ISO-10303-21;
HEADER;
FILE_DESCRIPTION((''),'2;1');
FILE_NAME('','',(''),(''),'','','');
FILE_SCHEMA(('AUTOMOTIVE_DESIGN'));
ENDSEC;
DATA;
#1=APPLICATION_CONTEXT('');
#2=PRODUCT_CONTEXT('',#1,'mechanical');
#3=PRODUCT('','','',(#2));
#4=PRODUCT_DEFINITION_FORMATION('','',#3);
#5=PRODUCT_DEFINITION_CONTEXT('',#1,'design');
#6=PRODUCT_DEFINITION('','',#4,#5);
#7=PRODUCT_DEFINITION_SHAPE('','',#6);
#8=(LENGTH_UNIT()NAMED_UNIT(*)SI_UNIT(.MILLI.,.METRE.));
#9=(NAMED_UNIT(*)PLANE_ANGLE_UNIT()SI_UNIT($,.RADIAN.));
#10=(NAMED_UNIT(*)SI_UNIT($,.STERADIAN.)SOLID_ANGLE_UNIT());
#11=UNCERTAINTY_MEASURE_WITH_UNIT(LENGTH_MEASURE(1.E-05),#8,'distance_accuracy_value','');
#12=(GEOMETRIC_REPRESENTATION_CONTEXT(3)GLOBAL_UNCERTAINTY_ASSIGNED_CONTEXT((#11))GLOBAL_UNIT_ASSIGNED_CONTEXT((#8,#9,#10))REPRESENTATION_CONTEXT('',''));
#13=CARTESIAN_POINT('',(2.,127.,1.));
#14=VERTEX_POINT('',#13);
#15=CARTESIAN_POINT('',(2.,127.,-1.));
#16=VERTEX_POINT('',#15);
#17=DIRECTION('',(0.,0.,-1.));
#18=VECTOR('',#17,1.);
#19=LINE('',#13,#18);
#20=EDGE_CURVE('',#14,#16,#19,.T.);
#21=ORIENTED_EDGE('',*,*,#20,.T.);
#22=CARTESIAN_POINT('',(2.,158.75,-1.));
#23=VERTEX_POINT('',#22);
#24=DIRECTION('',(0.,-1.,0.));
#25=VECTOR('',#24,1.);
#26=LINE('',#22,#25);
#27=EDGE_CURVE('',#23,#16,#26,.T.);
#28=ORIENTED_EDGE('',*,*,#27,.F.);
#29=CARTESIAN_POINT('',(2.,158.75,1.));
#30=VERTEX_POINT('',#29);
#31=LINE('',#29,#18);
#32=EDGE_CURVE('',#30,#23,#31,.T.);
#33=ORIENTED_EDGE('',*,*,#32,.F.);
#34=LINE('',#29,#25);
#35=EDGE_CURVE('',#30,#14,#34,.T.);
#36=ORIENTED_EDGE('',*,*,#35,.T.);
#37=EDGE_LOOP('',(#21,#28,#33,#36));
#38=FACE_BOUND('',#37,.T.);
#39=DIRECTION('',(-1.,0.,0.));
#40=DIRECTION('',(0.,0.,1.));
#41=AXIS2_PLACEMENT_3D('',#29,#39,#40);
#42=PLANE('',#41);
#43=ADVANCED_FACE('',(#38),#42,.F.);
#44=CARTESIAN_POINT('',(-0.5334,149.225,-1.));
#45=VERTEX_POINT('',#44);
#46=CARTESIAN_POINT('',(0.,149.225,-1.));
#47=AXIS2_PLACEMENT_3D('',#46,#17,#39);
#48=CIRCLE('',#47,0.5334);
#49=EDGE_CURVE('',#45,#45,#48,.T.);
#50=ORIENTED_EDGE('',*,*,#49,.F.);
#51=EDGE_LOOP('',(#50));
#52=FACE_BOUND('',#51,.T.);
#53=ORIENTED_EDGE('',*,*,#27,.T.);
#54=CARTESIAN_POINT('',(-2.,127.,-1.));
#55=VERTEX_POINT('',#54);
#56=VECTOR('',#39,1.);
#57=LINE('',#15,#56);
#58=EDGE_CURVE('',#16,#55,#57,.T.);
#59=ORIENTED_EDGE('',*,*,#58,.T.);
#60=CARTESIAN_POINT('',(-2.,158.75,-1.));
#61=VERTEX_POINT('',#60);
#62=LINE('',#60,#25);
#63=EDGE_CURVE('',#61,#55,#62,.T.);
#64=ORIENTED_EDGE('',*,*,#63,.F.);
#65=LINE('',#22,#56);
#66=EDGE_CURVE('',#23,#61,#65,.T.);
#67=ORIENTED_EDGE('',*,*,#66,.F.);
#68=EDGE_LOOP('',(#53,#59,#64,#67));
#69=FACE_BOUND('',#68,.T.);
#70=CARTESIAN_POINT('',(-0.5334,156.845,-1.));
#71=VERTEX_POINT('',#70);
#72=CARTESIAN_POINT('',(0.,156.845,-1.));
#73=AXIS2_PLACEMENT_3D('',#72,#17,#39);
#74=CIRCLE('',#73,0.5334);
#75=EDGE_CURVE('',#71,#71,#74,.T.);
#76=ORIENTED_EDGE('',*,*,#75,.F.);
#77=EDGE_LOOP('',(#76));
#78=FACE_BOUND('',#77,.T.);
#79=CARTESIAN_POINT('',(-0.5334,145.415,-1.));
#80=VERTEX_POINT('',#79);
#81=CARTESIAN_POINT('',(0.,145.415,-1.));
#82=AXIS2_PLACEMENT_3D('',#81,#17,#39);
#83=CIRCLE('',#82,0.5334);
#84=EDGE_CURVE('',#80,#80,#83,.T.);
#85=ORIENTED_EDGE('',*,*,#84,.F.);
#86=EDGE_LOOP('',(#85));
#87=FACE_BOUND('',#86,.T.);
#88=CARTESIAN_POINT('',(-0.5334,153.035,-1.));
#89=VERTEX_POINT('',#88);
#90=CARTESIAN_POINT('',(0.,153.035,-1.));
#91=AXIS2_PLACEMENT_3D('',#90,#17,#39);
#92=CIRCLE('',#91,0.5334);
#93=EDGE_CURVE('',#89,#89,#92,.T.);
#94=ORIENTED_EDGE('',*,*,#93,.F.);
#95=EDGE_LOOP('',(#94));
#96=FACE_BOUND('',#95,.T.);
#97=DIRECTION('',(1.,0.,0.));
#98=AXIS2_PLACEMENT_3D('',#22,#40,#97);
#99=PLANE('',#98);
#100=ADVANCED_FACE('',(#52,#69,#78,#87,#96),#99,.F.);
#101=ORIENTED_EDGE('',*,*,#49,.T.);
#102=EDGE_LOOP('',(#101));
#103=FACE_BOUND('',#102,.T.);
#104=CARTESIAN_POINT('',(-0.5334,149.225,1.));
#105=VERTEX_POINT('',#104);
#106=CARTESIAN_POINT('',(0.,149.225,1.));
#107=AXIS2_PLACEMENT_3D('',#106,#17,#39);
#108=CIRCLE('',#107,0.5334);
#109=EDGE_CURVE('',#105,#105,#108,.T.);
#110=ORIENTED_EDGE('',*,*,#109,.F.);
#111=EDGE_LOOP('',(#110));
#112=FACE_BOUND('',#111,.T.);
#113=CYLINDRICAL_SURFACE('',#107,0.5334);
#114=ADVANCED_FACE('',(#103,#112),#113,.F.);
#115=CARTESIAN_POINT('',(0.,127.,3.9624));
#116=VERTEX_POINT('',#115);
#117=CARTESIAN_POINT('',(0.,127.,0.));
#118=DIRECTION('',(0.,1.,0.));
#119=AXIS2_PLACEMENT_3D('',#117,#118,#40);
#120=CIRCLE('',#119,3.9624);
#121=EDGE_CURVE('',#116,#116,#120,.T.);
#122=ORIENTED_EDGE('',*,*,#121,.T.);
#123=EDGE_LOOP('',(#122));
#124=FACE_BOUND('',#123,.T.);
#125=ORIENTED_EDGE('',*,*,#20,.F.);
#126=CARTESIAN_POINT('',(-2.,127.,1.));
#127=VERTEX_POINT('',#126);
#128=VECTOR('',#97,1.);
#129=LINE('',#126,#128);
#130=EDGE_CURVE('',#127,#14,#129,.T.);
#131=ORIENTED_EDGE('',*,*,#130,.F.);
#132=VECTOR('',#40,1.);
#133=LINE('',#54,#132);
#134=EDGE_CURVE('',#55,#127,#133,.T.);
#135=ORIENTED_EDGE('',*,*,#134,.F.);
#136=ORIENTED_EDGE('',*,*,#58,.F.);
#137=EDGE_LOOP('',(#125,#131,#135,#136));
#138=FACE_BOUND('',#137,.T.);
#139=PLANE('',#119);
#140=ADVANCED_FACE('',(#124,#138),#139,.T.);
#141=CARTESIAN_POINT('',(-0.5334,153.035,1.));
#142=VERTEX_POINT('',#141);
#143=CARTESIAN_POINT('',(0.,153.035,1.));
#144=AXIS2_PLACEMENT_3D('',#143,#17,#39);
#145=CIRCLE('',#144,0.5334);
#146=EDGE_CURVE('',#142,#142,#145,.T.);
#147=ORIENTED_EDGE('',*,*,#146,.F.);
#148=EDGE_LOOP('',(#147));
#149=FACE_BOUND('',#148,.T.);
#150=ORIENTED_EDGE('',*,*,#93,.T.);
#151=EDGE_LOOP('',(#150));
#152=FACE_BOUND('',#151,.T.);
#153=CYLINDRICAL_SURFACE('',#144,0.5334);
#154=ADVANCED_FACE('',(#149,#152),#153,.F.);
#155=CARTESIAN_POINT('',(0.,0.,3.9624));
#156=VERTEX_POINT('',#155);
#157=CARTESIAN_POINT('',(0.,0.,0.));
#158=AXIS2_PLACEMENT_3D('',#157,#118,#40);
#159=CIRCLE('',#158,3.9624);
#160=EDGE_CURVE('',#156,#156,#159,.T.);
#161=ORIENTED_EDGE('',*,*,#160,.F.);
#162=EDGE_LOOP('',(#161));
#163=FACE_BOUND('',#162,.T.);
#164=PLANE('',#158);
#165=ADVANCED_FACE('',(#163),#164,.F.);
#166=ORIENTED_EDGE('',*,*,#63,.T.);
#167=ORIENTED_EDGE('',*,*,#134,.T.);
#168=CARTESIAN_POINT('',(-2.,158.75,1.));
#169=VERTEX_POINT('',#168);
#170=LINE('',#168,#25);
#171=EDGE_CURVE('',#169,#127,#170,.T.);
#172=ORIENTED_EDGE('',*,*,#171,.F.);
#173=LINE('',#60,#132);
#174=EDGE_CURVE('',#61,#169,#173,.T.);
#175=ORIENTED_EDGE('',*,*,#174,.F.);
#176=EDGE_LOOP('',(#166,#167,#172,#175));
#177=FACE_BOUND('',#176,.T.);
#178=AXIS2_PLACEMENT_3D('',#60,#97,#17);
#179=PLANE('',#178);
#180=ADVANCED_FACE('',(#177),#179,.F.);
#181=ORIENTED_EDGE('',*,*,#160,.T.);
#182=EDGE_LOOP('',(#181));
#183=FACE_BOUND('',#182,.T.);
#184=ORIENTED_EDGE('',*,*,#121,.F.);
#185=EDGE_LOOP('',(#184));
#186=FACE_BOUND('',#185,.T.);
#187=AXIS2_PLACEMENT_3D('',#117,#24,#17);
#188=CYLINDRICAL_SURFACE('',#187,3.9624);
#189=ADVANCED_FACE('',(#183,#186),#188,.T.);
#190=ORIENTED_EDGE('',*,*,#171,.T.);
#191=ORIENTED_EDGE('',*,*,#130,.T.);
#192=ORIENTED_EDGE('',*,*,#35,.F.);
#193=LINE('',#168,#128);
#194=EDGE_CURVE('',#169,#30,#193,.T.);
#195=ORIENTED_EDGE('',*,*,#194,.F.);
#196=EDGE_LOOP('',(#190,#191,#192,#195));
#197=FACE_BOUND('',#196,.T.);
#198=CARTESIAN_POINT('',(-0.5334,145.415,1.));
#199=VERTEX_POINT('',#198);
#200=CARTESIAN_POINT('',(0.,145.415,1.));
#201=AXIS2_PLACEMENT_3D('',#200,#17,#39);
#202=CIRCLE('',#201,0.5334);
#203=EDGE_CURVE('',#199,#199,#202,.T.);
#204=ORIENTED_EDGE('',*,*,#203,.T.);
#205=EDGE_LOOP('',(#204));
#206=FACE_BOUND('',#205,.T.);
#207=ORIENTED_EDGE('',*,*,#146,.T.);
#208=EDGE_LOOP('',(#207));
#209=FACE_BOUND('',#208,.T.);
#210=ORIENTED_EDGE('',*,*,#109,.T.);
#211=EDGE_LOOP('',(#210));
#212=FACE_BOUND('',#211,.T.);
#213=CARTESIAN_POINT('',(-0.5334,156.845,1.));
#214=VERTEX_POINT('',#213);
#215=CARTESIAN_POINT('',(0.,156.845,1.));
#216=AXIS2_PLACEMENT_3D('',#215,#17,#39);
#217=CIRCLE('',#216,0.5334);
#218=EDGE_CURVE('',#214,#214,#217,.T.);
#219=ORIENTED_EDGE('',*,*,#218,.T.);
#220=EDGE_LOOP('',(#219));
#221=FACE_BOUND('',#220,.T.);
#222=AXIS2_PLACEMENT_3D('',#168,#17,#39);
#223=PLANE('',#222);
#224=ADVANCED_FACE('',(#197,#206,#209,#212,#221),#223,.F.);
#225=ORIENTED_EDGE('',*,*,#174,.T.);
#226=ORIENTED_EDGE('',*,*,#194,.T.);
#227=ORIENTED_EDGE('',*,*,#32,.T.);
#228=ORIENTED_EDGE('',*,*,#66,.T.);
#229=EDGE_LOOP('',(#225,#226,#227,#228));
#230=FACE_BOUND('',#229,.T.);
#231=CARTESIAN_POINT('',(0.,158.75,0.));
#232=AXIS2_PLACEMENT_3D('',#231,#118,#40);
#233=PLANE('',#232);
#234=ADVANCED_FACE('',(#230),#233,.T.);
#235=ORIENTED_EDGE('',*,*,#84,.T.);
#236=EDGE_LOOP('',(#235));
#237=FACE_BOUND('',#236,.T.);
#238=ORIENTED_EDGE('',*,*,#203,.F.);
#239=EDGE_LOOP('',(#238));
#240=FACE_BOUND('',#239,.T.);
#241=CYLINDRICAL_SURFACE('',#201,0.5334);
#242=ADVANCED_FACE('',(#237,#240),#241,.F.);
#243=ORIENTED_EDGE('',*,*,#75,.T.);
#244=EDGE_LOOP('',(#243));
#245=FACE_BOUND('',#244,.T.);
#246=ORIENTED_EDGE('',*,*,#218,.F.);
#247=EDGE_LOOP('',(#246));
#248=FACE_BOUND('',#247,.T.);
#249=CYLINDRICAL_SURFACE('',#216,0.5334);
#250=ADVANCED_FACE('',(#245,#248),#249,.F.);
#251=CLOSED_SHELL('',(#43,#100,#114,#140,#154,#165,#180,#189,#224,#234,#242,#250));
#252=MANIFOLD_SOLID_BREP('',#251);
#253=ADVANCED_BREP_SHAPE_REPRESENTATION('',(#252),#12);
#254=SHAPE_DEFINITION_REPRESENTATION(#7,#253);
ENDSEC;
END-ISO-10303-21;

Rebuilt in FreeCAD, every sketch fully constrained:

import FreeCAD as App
import Part
import Sketcher
Q = App.Units.Quantity


def add_polygon(sketch, points):
    """Adds a closed chain of lines whose ends are joined by coincident constraints."""
    first, n = sketch.GeometryCount, len(points)
    for a, b in zip(points, points[1:] + points[:1]):
        sketch.addGeometry(Part.LineSegment(App.Vector(*a, 0), App.Vector(*b, 0)), False)
    for i in range(n):
        sketch.addConstraint(Sketcher.Constraint("Coincident", first + i, 2, first + (i + 1) % n, 1))

doc = App.newDocument("Part")
body = doc.addObject("PartDesign::Body", "Body")

sketch1 = doc.addObject("Sketcher::SketchObject", "Sketch")
body.addObject(sketch1)
sketch1.AttachmentSupport = (doc.XZ_Plane, [""])
sketch1.MapMode = "FlatFace"
sketch1.addGeometry(Part.Circle(App.Vector(0, 0, 0), App.Vector(0, 0, 1), 4), False)
sketch1.addConstraint(Sketcher.Constraint("Coincident", 0, 3, -1, 1))
sketch1.addConstraint(Sketcher.Constraint("Diameter", 0, Q("0.312 in")))
pad1 = doc.addObject("PartDesign::Pad", "Pad")
body.addObject(pad1)
pad1.Profile = sketch1
pad1.Length = Q("5 in")
pad1.Reversed = True

sketch2 = doc.addObject("Sketcher::SketchObject", "Sketch001")
body.addObject(sketch2)
sketch2.AttachmentSupport = (doc.XZ_Plane, [""])
sketch2.MapMode = "FlatFace"
sketch2.AttachmentOffset = App.Placement(App.Vector(0, 0, -5 * 25.4), App.Rotation())
add_polygon(sketch2, [(-2, -1), (-2, 1), (2, 1), (2, -1)])
sketch2.addConstraint(Sketcher.Constraint("Vertical", 0))
sketch2.addConstraint(Sketcher.Constraint("Horizontal", 1))
sketch2.addConstraint(Sketcher.Constraint("Vertical", 2))
sketch2.addConstraint(Sketcher.Constraint("Horizontal", 3))
sketch2.addConstraint(Sketcher.Constraint("Symmetric", 0, 2, 2, 2, -1, 1))
sketch2.addConstraint(Sketcher.Constraint("DistanceX", 1, 1, 1, 2, Q("4 mm")))
sketch2.addConstraint(Sketcher.Constraint("DistanceY", 0, 1, 0, 2, Q("2 mm")))
pad2 = doc.addObject("PartDesign::Pad", "Pad001")
body.addObject(pad2)
pad2.Profile = sketch2
pad2.Length = Q("1.25 in")
pad2.Reversed = True

sketch3 = doc.addObject("Sketcher::SketchObject", "Sketch002")
body.addObject(sketch3)
sketch3.AttachmentSupport = (doc.XY_Plane, [""])
sketch3.MapMode = "FlatFace"
sketch3.AttachmentOffset = App.Placement(App.Vector(0, 0, -1), App.Rotation())
sketch3.addGeometry(Part.Circle(App.Vector(0, 156.8, 0), App.Vector(0, 0, 1), 0.5), False)
sketch3.addGeometry(Part.Circle(App.Vector(0, 153, 0), App.Vector(0, 0, 1), 0.5), False)
sketch3.addGeometry(Part.Circle(App.Vector(0, 149.2, 0), App.Vector(0, 0, 1), 0.5), False)
sketch3.addGeometry(Part.Circle(App.Vector(0, 145.4, 0), App.Vector(0, 0, 1), 0.5), False)
sketch3.addConstraint(Sketcher.Constraint("Equal", 0, 1))
sketch3.addConstraint(Sketcher.Constraint("Equal", 1, 2))
sketch3.addConstraint(Sketcher.Constraint("Equal", 2, 3))
sketch3.addConstraint(Sketcher.Constraint("PointOnObject", 0, 3, -2))
sketch3.addConstraint(Sketcher.Constraint("PointOnObject", 1, 3, -2))
sketch3.addConstraint(Sketcher.Constraint("PointOnObject", 2, 3, -2))
sketch3.addConstraint(Sketcher.Constraint("PointOnObject", 3, 3, -2))
sketch3.addConstraint(Sketcher.Constraint("Diameter", 0, Q("0.042 in")))
sketch3.addConstraint(Sketcher.Constraint("DistanceY", 2, 3, 0, 3, Q("0.3 in")))
sketch3.addConstraint(Sketcher.Constraint("DistanceY", 3, 3, 1, 3, Q("0.3 in")))
sketch3.addConstraint(Sketcher.Constraint("DistanceY", 1, 3, 0, 3, Q("0.15 in")))
sketch3.addConstraint(Sketcher.Constraint("DistanceY", -1, 1, 0, 3, Q("6.175 in")))
pocket1 = doc.addObject("PartDesign::Pocket", "Pocket")
body.addObject(pocket1)
pocket1.Profile = sketch3
pocket1.Length = 2
pocket1.Reversed = True

doc.recompute()
